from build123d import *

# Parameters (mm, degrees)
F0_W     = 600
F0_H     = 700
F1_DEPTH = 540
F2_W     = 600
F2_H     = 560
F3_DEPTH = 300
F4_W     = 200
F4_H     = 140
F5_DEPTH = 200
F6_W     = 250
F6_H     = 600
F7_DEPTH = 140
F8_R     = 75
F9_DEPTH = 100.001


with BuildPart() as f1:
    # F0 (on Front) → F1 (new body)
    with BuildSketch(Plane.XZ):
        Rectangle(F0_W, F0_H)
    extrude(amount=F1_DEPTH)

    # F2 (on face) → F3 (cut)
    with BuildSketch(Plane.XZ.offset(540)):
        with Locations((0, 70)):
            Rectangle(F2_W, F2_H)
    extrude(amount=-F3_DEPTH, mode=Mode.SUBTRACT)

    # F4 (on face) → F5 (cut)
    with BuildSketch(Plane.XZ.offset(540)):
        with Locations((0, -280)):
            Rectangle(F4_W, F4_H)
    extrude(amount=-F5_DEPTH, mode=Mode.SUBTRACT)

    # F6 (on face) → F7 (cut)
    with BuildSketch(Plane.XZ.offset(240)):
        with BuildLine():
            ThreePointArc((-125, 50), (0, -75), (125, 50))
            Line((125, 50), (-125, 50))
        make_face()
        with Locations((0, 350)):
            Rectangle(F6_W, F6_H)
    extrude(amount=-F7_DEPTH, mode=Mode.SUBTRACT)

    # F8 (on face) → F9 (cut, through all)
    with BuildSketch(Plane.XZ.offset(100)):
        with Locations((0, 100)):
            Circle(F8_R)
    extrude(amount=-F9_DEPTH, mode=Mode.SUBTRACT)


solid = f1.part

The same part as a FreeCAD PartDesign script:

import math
import FreeCAD as App
import Part
import Sketcher
from FreeCAD import Vector
Q = App.Units.Quantity

doc = App.newDocument("Part")
body = doc.addObject("PartDesign::Body", "Body")

# Sketch on XZ plane
sketch1 = body.newObject("Sketcher::SketchObject", "Sketch")
sketch1.AttachmentSupport = (doc.getObject("XZ_Plane"), [""])
sketch1.MapMode = "FlatFace"
sketch1.addGeometry([
    Part.LineSegment(Vector(-300, 350, 0), Vector(-300, -350, 0)),
    Part.LineSegment(Vector(-300, -350, 0), Vector(300, -350, 0)),
    Part.LineSegment(Vector(300, -350, 0), Vector(300, 350, 0)),
    Part.LineSegment(Vector(300, 350, 0), Vector(-300, 350, 0)),
], False)
sketch1.addConstraint([
    Sketcher.Constraint("Coincident", 0, 2, 1, 1),
    Sketcher.Constraint("Coincident", 1, 2, 2, 1),
    Sketcher.Constraint("Coincident", 2, 2, 3, 1),
    Sketcher.Constraint("Coincident", 3, 2, 0, 1),
    Sketcher.Constraint("Vertical", 0),
    Sketcher.Constraint("Horizontal", 1),
    Sketcher.Constraint("Vertical", 2),
    Sketcher.Constraint("Horizontal", 3),
    Sketcher.Constraint("Symmetric", 0, 2, 2, 2, -1, 1),
    Sketcher.Constraint("DistanceX", 1, 1, 1, 2, Q("600 mm")),
    Sketcher.Constraint("DistanceY", 0, 2, 0, 1, Q("700 mm")),
])
pad1 = body.newObject("PartDesign::Pad", "Pad")
pad1.Profile = sketch1
pad1.Length = 540

# Sketch on XZ plane
sketch2 = body.newObject("Sketcher::SketchObject", "Sketch001")
sketch2.AttachmentSupport = (doc.getObject("XZ_Plane"), [""])
sketch2.MapMode = "FlatFace"
sketch2.AttachmentOffset = App.Placement(Vector(0, 0, 540), App.Rotation())
sketch2.addGeometry([
    Part.LineSegment(Vector(-300, 350, 0), Vector(-300, -210, 0)),
    Part.LineSegment(Vector(-300, -210, 0), Vector(300, -210, 0)),
    Part.LineSegment(Vector(300, -210, 0), Vector(300, 350, 0)),
    Part.LineSegment(Vector(300, 350, 0), Vector(-300, 350, 0)),
], False)
sketch2.addConstraint([
    Sketcher.Constraint("Coincident", 0, 2, 1, 1),
    Sketcher.Constraint("Coincident", 1, 2, 2, 1),
    Sketcher.Constraint("Coincident", 2, 2, 3, 1),
    Sketcher.Constraint("Coincident", 3, 2, 0, 1),
    Sketcher.Constraint("Vertical", 0),
    Sketcher.Constraint("Horizontal", 1),
    Sketcher.Constraint("Vertical", 2),
    Sketcher.Constraint("Horizontal", 3),
    Sketcher.Constraint("DistanceX", 1, 1, 1, 2, Q("600 mm")),
    Sketcher.Constraint("DistanceY", 0, 2, 0, 1, Q("560 mm")),
    Sketcher.Constraint("DistanceX", 0, 2, -1, 1, Q("300 mm")),
    Sketcher.Constraint("DistanceY", 0, 2, -1, 1, Q("210 mm")),
])
pocket1 = body.newObject("PartDesign::Pocket", "Pocket")
pocket1.Profile = sketch2
pocket1.Length = 300

# Sketch on XZ plane
sketch3 = body.newObject("Sketcher::SketchObject", "Sketch002")
sketch3.AttachmentSupport = (doc.getObject("XZ_Plane"), [""])
sketch3.MapMode = "FlatFace"
sketch3.AttachmentOffset = App.Placement(Vector(0, 0, 540), App.Rotation())
sketch3.addGeometry([
    Part.LineSegment(Vector(-100, -210, 0), Vector(-100, -350, 0)),
    Part.LineSegment(Vector(-100, -350, 0), Vector(100, -350, 0)),
    Part.LineSegment(Vector(100, -350, 0), Vector(100, -210, 0)),
    Part.LineSegment(Vector(100, -210, 0), Vector(-100, -210, 0)),
], False)
sketch3.addConstraint([
    Sketcher.Constraint("Coincident", 0, 2, 1, 1),
    Sketcher.Constraint("Coincident", 1, 2, 2, 1),
    Sketcher.Constraint("Coincident", 2, 2, 3, 1),
    Sketcher.Constraint("Coincident", 3, 2, 0, 1),
    Sketcher.Constraint("Vertical", 0),
    Sketcher.Constraint("Horizontal", 1),
    Sketcher.Constraint("Vertical", 2),
    Sketcher.Constraint("Horizontal", 3),
    Sketcher.Constraint("DistanceX", 1, 1, 1, 2, Q("200 mm")),
    Sketcher.Constraint("DistanceY", 0, 2, 0, 1, Q("140 mm")),
    Sketcher.Constraint("DistanceX", 0, 2, -1, 1, Q("100 mm")),
    Sketcher.Constraint("DistanceY", 0, 2, -1, 1, Q("350 mm")),
])
pocket2 = body.newObject("PartDesign::Pocket", "Pocket001")
pocket2.Profile = sketch3
pocket2.Length = 200

# Sketch on XZ plane
sketch4 = body.newObject("Sketcher::SketchObject", "Sketch003")
sketch4.AttachmentSupport = (doc.getObject("XZ_Plane"), [""])
sketch4.MapMode = "FlatFace"
sketch4.AttachmentOffset = App.Placement(Vector(0, 0, 240), App.Rotation())
sketch4.addGeometry([
    Part.ArcOfCircle(Part.Circle(Vector(0, 50, 0), Vector(0, 0, 1), 125), math.radians(180), math.radians(360)),
    Part.LineSegment(Vector(125, 50, 0), Vector(125, 650, 0)),
    Part.LineSegment(Vector(125, 650, 0), Vector(-125, 650, 0)),
    Part.LineSegment(Vector(-125, 650, 0), Vector(-125, 50, 0)),
], False)
sketch4.addConstraint([
    Sketcher.Constraint("Tangent", 0, 2, 1, 1),
    Sketcher.Constraint("Coincident", 1, 2, 2, 1),
    Sketcher.Constraint("Coincident", 2, 2, 3, 1),
    Sketcher.Constraint("Tangent", 3, 2, 0, 1),
    Sketcher.Constraint("Vertical", 1),
    Sketcher.Constraint("Horizontal", 2),
    Sketcher.Constraint("Vertical", 3),
    Sketcher.Constraint("PointOnObject", 0, 3, -2),
    Sketcher.Constraint("Radius", 0, Q("125 mm")),
    Sketcher.Constraint("DistanceY", 1, 1, 1, 2, Q("600 mm")),
    Sketcher.Constraint("DistanceY", -1, 1, 0, 3, Q("50 mm")),
])
pocket3 = body.newObject("PartDesign::Pocket", "Pocket002")
pocket3.Profile = sketch4
pocket3.Length = 140

# Sketch on XZ plane
sketch5 = body.newObject("Sketcher::SketchObject", "Sketch004")
sketch5.AttachmentSupport = (doc.getObject("XZ_Plane"), [""])
sketch5.MapMode = "FlatFace"
sketch5.AttachmentOffset = App.Placement(Vector(0, 0, 100), App.Rotation())
sketch5.addGeometry(Part.Circle(Vector(0, 100, 0), Vector(0, 0, 1), 75), False)
sketch5.addConstraint([
    Sketcher.Constraint("PointOnObject", 0, 3, -2),
    Sketcher.Constraint("Diameter", 0, Q("150 mm")),
    Sketcher.Constraint("DistanceY", -1, 1, 0, 3, Q("100 mm")),
])
pocket4 = body.newObject("PartDesign::Pocket", "Pocket003")
pocket4.Profile = sketch5
pocket4.Type = "ThroughAll"

doc.recompute()
